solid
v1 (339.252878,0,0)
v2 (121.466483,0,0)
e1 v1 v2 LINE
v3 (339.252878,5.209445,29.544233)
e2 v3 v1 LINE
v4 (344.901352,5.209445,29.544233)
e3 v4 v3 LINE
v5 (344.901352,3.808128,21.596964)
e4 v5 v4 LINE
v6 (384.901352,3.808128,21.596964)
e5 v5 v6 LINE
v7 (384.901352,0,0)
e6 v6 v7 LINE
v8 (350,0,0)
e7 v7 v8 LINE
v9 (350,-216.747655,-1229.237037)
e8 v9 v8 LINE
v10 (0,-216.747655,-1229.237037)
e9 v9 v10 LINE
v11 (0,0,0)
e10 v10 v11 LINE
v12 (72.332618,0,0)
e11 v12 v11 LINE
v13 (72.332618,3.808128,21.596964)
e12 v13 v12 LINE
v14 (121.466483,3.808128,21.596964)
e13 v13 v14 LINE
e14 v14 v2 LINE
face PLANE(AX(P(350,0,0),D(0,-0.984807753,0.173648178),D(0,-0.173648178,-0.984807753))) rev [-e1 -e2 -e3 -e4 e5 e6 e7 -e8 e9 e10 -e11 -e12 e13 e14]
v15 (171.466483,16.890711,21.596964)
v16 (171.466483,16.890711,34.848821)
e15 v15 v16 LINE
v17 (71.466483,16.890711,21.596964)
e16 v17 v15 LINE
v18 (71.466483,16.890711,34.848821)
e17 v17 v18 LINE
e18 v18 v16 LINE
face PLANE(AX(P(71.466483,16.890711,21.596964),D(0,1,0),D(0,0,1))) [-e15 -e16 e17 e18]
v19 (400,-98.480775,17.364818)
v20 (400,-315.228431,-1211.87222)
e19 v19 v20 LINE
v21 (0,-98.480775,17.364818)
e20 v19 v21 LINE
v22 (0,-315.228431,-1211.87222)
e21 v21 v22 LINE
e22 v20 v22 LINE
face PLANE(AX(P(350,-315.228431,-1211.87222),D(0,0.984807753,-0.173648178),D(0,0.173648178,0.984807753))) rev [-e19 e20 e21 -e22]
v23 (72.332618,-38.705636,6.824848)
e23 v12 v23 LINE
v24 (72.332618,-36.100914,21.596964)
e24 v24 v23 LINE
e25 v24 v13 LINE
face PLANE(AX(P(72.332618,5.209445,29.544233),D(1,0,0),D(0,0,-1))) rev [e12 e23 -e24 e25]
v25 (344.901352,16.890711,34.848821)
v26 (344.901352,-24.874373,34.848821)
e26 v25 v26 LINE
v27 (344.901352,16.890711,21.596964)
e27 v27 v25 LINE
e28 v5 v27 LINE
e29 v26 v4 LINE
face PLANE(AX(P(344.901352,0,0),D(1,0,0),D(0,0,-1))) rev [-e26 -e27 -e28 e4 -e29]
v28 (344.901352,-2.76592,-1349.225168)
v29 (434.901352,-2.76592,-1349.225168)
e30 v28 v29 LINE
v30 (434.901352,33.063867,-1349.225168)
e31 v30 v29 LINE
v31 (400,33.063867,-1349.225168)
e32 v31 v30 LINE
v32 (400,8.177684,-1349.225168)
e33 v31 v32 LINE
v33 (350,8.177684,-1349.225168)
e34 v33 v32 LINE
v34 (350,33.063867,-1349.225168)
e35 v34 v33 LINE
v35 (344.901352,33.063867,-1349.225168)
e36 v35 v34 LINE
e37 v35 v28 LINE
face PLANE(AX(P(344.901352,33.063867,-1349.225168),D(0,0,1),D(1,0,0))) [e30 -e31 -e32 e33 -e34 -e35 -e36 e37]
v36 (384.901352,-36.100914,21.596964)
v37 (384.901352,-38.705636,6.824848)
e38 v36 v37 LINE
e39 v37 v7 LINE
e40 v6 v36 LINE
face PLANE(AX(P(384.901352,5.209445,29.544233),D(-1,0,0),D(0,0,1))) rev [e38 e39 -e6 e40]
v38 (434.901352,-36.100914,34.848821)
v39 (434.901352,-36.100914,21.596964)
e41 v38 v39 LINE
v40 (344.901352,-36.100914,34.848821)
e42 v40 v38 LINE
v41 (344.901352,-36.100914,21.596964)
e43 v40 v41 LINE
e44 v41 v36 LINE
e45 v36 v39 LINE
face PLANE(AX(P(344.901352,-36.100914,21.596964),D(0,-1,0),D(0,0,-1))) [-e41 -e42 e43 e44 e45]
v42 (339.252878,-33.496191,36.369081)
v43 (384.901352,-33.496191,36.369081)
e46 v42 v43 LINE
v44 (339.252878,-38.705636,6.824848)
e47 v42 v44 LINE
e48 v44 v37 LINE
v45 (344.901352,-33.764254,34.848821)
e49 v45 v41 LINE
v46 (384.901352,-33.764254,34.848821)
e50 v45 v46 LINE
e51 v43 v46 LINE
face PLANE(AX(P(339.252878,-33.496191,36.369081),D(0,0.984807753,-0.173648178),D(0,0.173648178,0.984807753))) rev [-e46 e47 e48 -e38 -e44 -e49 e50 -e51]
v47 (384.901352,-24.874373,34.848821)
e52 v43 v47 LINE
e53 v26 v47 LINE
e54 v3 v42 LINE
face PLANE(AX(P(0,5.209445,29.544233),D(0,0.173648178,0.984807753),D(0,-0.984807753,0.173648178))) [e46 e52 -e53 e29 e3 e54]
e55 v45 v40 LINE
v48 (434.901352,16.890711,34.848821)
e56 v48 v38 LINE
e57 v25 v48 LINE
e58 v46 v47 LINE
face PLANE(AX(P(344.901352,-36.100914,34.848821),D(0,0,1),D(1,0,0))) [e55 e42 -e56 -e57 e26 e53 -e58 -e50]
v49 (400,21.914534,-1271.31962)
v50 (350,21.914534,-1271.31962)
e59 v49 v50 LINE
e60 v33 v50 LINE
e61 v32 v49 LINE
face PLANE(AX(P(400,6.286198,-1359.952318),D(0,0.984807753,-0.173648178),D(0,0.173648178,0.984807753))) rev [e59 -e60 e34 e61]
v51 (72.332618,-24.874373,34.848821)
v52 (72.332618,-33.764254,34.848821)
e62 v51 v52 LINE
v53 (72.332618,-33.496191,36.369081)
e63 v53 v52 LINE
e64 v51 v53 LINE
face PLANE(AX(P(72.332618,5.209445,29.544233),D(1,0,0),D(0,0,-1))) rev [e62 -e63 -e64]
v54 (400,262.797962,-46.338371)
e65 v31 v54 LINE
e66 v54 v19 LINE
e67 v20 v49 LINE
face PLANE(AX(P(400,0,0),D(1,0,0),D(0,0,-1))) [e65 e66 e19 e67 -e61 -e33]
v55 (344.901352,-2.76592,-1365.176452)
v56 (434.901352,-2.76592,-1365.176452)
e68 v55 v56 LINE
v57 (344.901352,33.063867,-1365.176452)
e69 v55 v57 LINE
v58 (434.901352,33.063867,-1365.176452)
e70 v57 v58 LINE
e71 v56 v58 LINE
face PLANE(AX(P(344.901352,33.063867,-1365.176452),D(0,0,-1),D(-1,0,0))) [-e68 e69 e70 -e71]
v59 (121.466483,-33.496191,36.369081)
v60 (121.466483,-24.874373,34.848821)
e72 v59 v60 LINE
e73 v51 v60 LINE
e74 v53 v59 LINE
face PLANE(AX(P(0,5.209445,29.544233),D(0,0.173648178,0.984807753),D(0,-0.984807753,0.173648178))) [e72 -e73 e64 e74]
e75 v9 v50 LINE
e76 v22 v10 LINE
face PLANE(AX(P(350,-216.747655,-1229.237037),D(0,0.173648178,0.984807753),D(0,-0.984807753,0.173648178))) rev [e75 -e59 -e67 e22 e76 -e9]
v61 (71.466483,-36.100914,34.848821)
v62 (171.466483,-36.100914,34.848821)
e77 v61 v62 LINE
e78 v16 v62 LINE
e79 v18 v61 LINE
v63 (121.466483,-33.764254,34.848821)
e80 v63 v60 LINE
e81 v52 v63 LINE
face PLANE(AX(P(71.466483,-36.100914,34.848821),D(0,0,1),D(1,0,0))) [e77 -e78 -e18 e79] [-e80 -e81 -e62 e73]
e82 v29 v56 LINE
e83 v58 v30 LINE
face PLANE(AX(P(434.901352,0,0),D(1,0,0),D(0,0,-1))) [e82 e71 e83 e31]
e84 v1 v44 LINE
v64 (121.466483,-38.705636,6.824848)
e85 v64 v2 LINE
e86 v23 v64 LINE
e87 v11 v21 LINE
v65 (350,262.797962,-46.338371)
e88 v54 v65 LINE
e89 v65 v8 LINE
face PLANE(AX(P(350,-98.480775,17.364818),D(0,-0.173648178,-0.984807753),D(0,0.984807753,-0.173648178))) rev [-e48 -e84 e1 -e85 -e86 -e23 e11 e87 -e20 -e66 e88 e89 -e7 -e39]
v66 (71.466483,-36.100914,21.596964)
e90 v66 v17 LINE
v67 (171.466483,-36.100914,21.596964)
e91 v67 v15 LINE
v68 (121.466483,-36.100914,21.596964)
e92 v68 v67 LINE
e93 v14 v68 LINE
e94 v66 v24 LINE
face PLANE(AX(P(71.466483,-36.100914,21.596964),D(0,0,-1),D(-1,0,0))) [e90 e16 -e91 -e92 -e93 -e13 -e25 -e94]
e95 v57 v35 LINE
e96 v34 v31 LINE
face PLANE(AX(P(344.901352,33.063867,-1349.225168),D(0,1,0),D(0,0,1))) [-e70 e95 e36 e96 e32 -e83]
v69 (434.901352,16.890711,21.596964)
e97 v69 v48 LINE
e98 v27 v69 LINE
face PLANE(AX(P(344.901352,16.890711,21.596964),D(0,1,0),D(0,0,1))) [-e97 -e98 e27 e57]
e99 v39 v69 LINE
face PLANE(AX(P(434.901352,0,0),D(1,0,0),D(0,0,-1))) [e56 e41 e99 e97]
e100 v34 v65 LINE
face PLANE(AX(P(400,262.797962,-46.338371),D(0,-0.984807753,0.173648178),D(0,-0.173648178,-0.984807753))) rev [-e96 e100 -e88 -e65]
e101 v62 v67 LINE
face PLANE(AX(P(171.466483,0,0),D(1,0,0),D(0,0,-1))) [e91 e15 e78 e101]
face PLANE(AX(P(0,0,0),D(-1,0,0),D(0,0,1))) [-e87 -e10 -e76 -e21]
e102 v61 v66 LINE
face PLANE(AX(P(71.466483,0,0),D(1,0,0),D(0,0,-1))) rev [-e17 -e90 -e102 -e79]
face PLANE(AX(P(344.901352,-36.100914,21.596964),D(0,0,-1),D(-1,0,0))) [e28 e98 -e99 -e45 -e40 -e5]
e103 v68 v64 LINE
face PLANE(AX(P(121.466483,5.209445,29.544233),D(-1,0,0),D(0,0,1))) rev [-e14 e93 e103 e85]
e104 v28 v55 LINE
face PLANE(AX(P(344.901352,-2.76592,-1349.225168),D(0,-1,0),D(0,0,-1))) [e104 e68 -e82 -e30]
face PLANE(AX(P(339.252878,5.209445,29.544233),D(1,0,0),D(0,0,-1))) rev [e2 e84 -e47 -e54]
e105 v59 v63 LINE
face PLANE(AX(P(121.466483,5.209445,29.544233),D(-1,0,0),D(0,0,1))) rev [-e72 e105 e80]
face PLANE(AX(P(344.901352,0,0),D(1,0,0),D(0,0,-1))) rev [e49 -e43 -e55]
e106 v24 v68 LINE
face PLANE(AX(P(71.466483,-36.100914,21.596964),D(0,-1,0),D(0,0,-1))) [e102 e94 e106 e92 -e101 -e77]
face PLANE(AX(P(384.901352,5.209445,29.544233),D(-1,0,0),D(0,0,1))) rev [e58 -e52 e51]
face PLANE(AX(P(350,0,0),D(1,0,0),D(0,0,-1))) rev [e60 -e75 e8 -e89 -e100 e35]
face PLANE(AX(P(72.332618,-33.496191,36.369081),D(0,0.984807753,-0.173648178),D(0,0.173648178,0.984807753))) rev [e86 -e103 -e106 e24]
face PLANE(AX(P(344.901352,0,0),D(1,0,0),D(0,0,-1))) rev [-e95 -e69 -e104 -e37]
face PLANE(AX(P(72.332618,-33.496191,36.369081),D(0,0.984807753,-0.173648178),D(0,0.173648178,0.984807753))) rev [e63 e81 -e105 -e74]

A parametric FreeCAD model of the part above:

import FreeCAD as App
import Part
import Sketcher
Q = App.Units.Quantity

doc = App.newDocument("Part")
body = doc.addObject("PartDesign::Body", "Body")

sketch1 = doc.addObject("Sketcher::SketchObject", "Sketch")
body.addObject(sketch1)
sketch1.AttachmentSupport = (doc.YZ_Plane, [""])
sketch1.MapMode = "FlatFace"
sketch1.addGeometry([
    Part.LineSegment(App.Vector(-217, -1229, 0), App.Vector(0, 0, 0)),
    Part.LineSegment(App.Vector(0, 0, 0), App.Vector(-98, 17, 0)),
    Part.LineSegment(App.Vector(-98, 17, 0), App.Vector(-315, -1212, 0)),
    Part.LineSegment(App.Vector(-315, -1212, 0), App.Vector(-217, -1229, 0)),
], False)
sketch1.addConstraint([
    Sketcher.Constraint("Coincident", 0, 2, 1, 1),
    Sketcher.Constraint("Coincident", 1, 2, 2, 1),
    Sketcher.Constraint("Coincident", 2, 2, 3, 1),
    Sketcher.Constraint("Coincident", 3, 2, 0, 1),
    Sketcher.Constraint("Coincident", 0, 2, -1, 1),
    Sketcher.Constraint("Perpendicular", 0, 1),
    Sketcher.Constraint("Perpendicular", 1, 2),
    Sketcher.Constraint("Perpendicular", 2, 3),
    Sketcher.Constraint("Angle", 0, Q("80 deg")),
    Sketcher.Constraint("Distance", 1, 100.0),
    Sketcher.Constraint("Distance", 0, 1248.2),
])
pad1 = doc.addObject("PartDesign::Pad", "Pad")
body.addObject(pad1)
pad1.Profile = sketch1
pad1.Length = 350

sketch2 = doc.addObject("Sketcher::SketchObject", "Sketch001")
body.addObject(sketch2)
sketch2.AttachmentSupport = (doc.YZ_Plane, [""])
sketch2.MapMode = "FlatFace"
sketch2.AttachmentOffset = App.Placement(App.Vector(0, 0, 350), App.Rotation())
sketch2.addGeometry([
    Part.LineSegment(App.Vector(263, -46, 0), App.Vector(-98, 17, 0)),
    Part.LineSegment(App.Vector(-98, 17, 0), App.Vector(-315, -1212, 0)),
    Part.LineSegment(App.Vector(-315, -1212, 0), App.Vector(46, -1276, 0)),
    Part.LineSegment(App.Vector(46, -1276, 0), App.Vector(263, -46, 0)),
], False)
sketch2.addConstraint([
    Sketcher.Constraint("Coincident", 0, 2, 1, 1),
    Sketcher.Constraint("Coincident", 1, 2, 2, 1),
    Sketcher.Constraint("Coincident", 2, 2, 3, 1),
    Sketcher.Constraint("Coincident", 3, 2, 0, 1),
    Sketcher.Constraint("Perpendicular", 0, 1),
    Sketcher.Constraint("Perpendicular", 1, 2),
    Sketcher.Constraint("Perpendicular", 2, 3),
    Sketcher.Constraint("Angle", 0, Q("170 deg")),
    Sketcher.Constraint("Distance", 1, 1248.2),
    Sketcher.Constraint("DistanceX", 1, 2, -1, 1, 315.228431),
    Sketcher.Constraint("DistanceY", 1, 2, -1, 1, 1211.87222),
    Sketcher.Constraint("DistanceY", 2, 2, -1, 1, 1275.575408),
])
pad2 = doc.addObject("PartDesign::Pad", "Pad001")
body.addObject(pad2)
pad2.Profile = sketch2
pad2.Length = 50

sketch3 = doc.addObject("Sketcher::SketchObject", "Sketch002")
body.addObject(sketch3)
sketch3.Placement = App.Placement(App.Vector(0, -216.747655, -1229.237037), App.Rotation(App.Vector(-1, 0, 0), App.Vector(0, 0.984807753, -0.173648178), App.Vector(0, -0.173648178, -0.984807753), "ZXY"))
sketch3.addGeometry([
    Part.LineSegment(App.Vector(-400, 267, 0), App.Vector(-400, 242, 0)),
    Part.LineSegment(App.Vector(-400, 242, 0), App.Vector(-350, 242, 0)),
    Part.LineSegment(App.Vector(-350, 242, 0), App.Vector(-350, 267, 0)),
    Part.LineSegment(App.Vector(-350, 267, 0), App.Vector(-400, 267, 0)),
], False)
sketch3.addConstraint([
    Sketcher.Constraint("Coincident", 0, 2, 1, 1),
    Sketcher.Constraint("Coincident", 1, 2, 2, 1),
    Sketcher.Constraint("Coincident", 2, 2, 3, 1),
    Sketcher.Constraint("Coincident", 3, 2, 0, 1),
    Sketcher.Constraint("Vertical", 0),
    Sketcher.Constraint("Horizontal", 1),
    Sketcher.Constraint("Vertical", 2),
    Sketcher.Constraint("Horizontal", 3),
    Sketcher.Constraint("DistanceX", 1, 1, 1, 2, 50.0),
    Sketcher.Constraint("DistanceX", 0, 2, -1, 1, 400.0),
    Sketcher.Constraint("DistanceY", 0, 2, 0, 1, 24.508106),
    Sketcher.Constraint("DistanceY", -1, 1, 0, 2, 242.343938),
])
pad3 = doc.addObject("PartDesign::Pad", "Pad002")
body.addObject(pad3)
pad3.Profile = sketch3
pad3.Length = 90

sketch4 = doc.addObject("Sketcher::SketchObject", "Sketch003")
body.addObject(sketch4)
sketch4.Placement = App.Placement(App.Vector(0, 0, 0), App.Rotation(App.Vector(1, 0, 0), App.Vector(0, 0.984807753, -0.173648178), App.Vector(0, 0.173648178, 0.984807753), "ZXY"))
sketch4.addGeometry([
    Part.LineSegment(App.Vector(72, 0, 0), App.Vector(72, -39, 0)),
    Part.LineSegment(App.Vector(72, -39, 0), App.Vector(121, -39, 0)),
    Part.LineSegment(App.Vector(121, -39, 0), App.Vector(121, 0, 0)),
    Part.LineSegment(App.Vector(121, 0, 0), App.Vector(72, 0, 0)),
    Part.LineSegment(App.Vector(339, 0, 0), App.Vector(339, -39, 0)),
    Part.LineSegment(App.Vector(339, -39, 0), App.Vector(385, -39, 0)),
    Part.LineSegment(App.Vector(385, -39, 0), App.Vector(385, 0, 0)),
    Part.LineSegment(App.Vector(385, 0, 0), App.Vector(339, 0, 0)),
], False)
sketch4.addConstraint([
    Sketcher.Constraint("Coincident", 0, 2, 1, 1),
    Sketcher.Constraint("Coincident", 1, 2, 2, 1),
    Sketcher.Constraint("Coincident", 2, 2, 3, 1),
    Sketcher.Constraint("Coincident", 3, 2, 0, 1),
    Sketcher.Constraint("Coincident", 4, 2, 5, 1),
    Sketcher.Constraint("Coincident", 5, 2, 6, 1),
    Sketcher.Constraint("Coincident", 6, 2, 7, 1),
    Sketcher.Constraint("Coincident", 7, 2, 4, 1),
    Sketcher.Constraint("Vertical", 0),
    Sketcher.Constraint("Horizontal", 1),
    Sketcher.Constraint("Vertical", 2),
    Sketcher.Constraint("Horizontal", 3),
    Sketcher.Constraint("Vertical", 4),
    Sketcher.Constraint("Horizontal", 5),
    Sketcher.Constraint("Vertical", 6),
    Sketcher.Constraint("Horizontal", 7),
    Sketcher.Constraint("PointOnObject", 2, 2, -1),
    Sketcher.Constraint("PointOnObject", 6, 2, -1),
    Sketcher.Constraint("Horizontal", 1, 2, 4, 2),
    Sketcher.Constraint("DistanceX", 1, 1, 1, 2, 49.133865),
    Sketcher.Constraint("DistanceX", 5, 1, 5, 2, 45.648473),
    Sketcher.Constraint("DistanceY", 0, 2, 0, 1, 39.302733),
    Sketcher.Constraint("DistanceX", -1, 1, 0, 2, 72.332618),
    Sketcher.Constraint("DistanceX", -1, 1, 4, 2, 339.252878),
])
pad4 = doc.addObject("PartDesign::Pad", "Pad003")
body.addObject(pad4)
pad4.Profile = sketch4
pad4.Length = 30

sketch5 = doc.addObject("Sketcher::SketchObject", "Sketch004")
body.addObject(sketch5)
sketch5.AttachmentSupport = (doc.YZ_Plane, [""])
sketch5.MapMode = "FlatFace"
sketch5.AttachmentOffset = App.Placement(App.Vector(0, 0, 384.901352), App.Rotation())
sketch5.addGeometry([
    Part.LineSegment(App.Vector(17, 35, 0), App.Vector(-36, 35, 0)),
    Part.LineSegment(App.Vector(-36, 35, 0), App.Vector(-36, 22, 0)),
    Part.LineSegment(App.Vector(-36, 22, 0), App.Vector(17, 22, 0)),
    Part.LineSegment(App.Vector(17, 22, 0), App.Vector(17, 35, 0)),
    Part.LineSegment(App.Vector(33, -1349, 0), App.Vector(-3, -1349, 0)),
    Part.LineSegment(App.Vector(-3, -1349, 0), App.Vector(-3, -1365, 0)),
    Part.LineSegment(App.Vector(-3, -1365, 0), App.Vector(33, -1365, 0)),
    Part.LineSegment(App.Vector(33, -1365, 0), App.Vector(33, -1349, 0)),
], False)
sketch5.addConstraint([
    Sketcher.Constraint("Coincident", 0, 2, 1, 1),
    Sketcher.Constraint("Coincident", 1, 2, 2, 1),
    Sketcher.Constraint("Coincident", 2, 2, 3, 1),
    Sketcher.Constraint("Coincident", 3, 2, 0, 1),
    Sketcher.Constraint("Coincident", 4, 2, 5, 1),
    Sketcher.Constraint("Coincident", 5, 2, 6, 1),
    Sketcher.Constraint("Coincident", 6, 2, 7, 1),
    Sketcher.Constraint("Coincident", 7, 2, 4, 1),
    Sketcher.Constraint("Horizontal", 0),
    Sketcher.Constraint("Vertical", 1),
    Sketcher.Constraint("Horizontal", 2),
    Sketcher.Constraint("Vertical", 3),
    Sketcher.Constraint("Horizontal", 4),
    Sketcher.Constraint("Vertical", 5),
    Sketcher.Constraint("Horizontal", 6),
    Sketcher.Constraint("Vertical", 7),
    Sketcher.Constraint("DistanceX", 0, 2, 0, 1, 52.991625),
    Sketcher.Constraint("DistanceX", 4, 2, 4, 1, 35.829787),
    Sketcher.Constraint("DistanceY", 1, 2, 1, 1, 13.251857),
    Sketcher.Constraint("DistanceY", 5, 2, 5, 1, 15.951284),
    Sketcher.Constraint("DistanceY", -1, 1, 0, 2, 34.848821),
    Sketcher.Constraint("DistanceX", -1, 1, 2, 2, 16.890711),
    Sketcher.Constraint("DistanceX", 4, 2, -1, 1, 2.76592),
    Sketcher.Constraint("DistanceY", 5, 2, -1, 1, 1365.176452),
])
pad5 = doc.addObject("PartDesign::Pad", "Pad004")
body.addObject(pad5)
pad5.Profile = sketch5
pad5.Type = "TwoLengths"
pad5.Length = 50
pad5.Length2 = 40

sketch6 = doc.addObject("Sketcher::SketchObject", "Sketch005")
body.addObject(sketch6)
sketch6.AttachmentSupport = (doc.YZ_Plane, [""])
sketch6.MapMode = "FlatFace"
sketch6.AttachmentOffset = App.Placement(App.Vector(0, 0, 121.466483), App.Rotation())
sketch6.addGeometry([
    Part.LineSegment(App.Vector(17, 35, 0), App.Vector(-36, 35, 0)),
    Part.LineSegment(App.Vector(-36, 35, 0), App.Vector(-36, 22, 0)),
    Part.LineSegment(App.Vector(-36, 22, 0), App.Vector(17, 22, 0)),
    Part.LineSegment(App.Vector(17, 22, 0), App.Vector(17, 35, 0)),
], False)
sketch6.addConstraint([
    Sketcher.Constraint("Coincident", 0, 2, 1, 1),
    Sketcher.Constraint("Coincident", 1, 2, 2, 1),
    Sketcher.Constraint("Coincident", 2, 2, 3, 1),
    Sketcher.Constraint("Coincident", 3, 2, 0, 1),
    Sketcher.Constraint("Horizontal", 0),
    Sketcher.Constraint("Vertical", 1),
    Sketcher.Constraint("Horizontal", 2),
    Sketcher.Constraint("Vertical", 3),
    Sketcher.Constraint("DistanceX", 0, 2, 0, 1, 52.991625),
    Sketcher.Constraint("DistanceY", 1, 2, 1, 1, 13.251857),
    Sketcher.Constraint("DistanceY", -1, 1, 0, 2, 34.848821),
    Sketcher.Constraint("DistanceX", -1, 1, 2, 2, 16.890711),
])
pad6 = doc.addObject("PartDesign::Pad", "Pad005")
body.addObject(pad6)
pad6.Profile = sketch6
pad6.Type = "TwoLengths"
pad6.Length = 50
pad6.Length2 = 50

doc.recompute()
